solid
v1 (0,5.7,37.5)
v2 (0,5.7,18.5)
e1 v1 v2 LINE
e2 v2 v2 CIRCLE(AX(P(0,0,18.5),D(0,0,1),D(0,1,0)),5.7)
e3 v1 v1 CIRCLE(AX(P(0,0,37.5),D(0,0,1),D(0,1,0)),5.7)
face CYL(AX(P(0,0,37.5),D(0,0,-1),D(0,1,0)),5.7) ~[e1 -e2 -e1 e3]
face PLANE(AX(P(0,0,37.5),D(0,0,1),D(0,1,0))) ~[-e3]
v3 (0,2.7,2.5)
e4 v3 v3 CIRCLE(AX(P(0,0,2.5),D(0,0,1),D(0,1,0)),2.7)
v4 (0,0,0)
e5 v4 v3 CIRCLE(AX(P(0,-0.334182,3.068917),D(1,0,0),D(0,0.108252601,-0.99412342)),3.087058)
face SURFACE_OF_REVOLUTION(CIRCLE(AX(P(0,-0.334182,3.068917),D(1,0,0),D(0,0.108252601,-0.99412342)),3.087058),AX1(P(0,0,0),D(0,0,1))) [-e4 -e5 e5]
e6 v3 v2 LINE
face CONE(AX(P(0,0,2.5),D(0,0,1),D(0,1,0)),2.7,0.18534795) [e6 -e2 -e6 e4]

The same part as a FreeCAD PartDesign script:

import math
import FreeCAD as App
import Part
import Sketcher

V = App.Vector

doc = App.newDocument("Part")
params = doc.addObject("Spreadsheet::Sheet", "Params")
for row, (alias, value) in enumerate([
    ("sketch1_height", "19 mm"),
    ("sketch1_width", "5.7 mm"),
    ("sketch1_height2", "37.5 mm"),
    ("revolution_angle", "360 deg"),
], start=1):
    params.set(f"A{row}", alias)
    params.set(f"B{row}", "=" + value)
    params.setAlias(f"B{row}", alias)

body = doc.addObject("PartDesign::Body", "Body")

# Sketch on YZ plane
sketch1 = body.newObject("Sketcher::SketchObject", "Sketch")
sketch1.AttachmentSupport = (doc.getObject("YZ_Plane"), [""])
sketch1.MapMode = "FlatFace"
sketch1.addGeometry([
    Part.LineSegment(V(0, 37.5, 0), V(0, 0, 0)),  # 0
    Part.ArcOfCircle(Part.Circle(V(-0.3, 3.1, 0), V(0, 0, 1), 3.1), math.radians(-84), math.radians(-11)),  # 1
    Part.LineSegment(V(2.7, 2.5, 0), V(5.7, 18.5, 0)),  # 2
    Part.LineSegment(V(5.7, 18.5, 0), V(5.7, 37.5, 0)),  # 3
    Part.LineSegment(V(5.7, 37.5, 0), V(0, 37.5, 0)),  # 4
], False)
sketch1.addConstraint([
    Sketcher.Constraint("Coincident", 0, 2, 1, 1),
    Sketcher.Constraint("Tangent", 1, 2, 2, 1),
    Sketcher.Constraint("Coincident", 2, 2, 3, 1),
    Sketcher.Constraint("Coincident", 3, 2, 4, 1),
    Sketcher.Constraint("Coincident", 4, 2, 0, 1),
    Sketcher.Constraint("Vertical", 0),
    Sketcher.Constraint("Vertical", 3),
    Sketcher.Constraint("Horizontal", 4),
    Sketcher.Constraint("Coincident", 0, 2, -1, 1),
    Sketcher.Constraint("DistanceY", 3, 1, 3, 2, 19.0),
    Sketcher.Constraint("DistanceX", 4, 2, 4, 1, 5.7),
    Sketcher.Constraint("DistanceY", 0, 2, 0, 1, 37.5),
    Sketcher.Constraint("DistanceX", -1, 1, 1, 2, 2.7),
    Sketcher.Constraint("DistanceY", -1, 1, 1, 2, 2.5),
])
sketch1.setExpression("Constraints[9]", "Params.sketch1_height")
sketch1.setExpression("Constraints[10]", "Params.sketch1_width")
sketch1.setExpression("Constraints[11]", "Params.sketch1_height2")
revolution = body.newObject("PartDesign::Revolution", "Revolution")
revolution.Profile = sketch1
revolution.ReferenceAxis = (sketch1, ["V_Axis"])
revolution.setExpression("Angle", "Params.revolution_angle")

doc.recompute()
